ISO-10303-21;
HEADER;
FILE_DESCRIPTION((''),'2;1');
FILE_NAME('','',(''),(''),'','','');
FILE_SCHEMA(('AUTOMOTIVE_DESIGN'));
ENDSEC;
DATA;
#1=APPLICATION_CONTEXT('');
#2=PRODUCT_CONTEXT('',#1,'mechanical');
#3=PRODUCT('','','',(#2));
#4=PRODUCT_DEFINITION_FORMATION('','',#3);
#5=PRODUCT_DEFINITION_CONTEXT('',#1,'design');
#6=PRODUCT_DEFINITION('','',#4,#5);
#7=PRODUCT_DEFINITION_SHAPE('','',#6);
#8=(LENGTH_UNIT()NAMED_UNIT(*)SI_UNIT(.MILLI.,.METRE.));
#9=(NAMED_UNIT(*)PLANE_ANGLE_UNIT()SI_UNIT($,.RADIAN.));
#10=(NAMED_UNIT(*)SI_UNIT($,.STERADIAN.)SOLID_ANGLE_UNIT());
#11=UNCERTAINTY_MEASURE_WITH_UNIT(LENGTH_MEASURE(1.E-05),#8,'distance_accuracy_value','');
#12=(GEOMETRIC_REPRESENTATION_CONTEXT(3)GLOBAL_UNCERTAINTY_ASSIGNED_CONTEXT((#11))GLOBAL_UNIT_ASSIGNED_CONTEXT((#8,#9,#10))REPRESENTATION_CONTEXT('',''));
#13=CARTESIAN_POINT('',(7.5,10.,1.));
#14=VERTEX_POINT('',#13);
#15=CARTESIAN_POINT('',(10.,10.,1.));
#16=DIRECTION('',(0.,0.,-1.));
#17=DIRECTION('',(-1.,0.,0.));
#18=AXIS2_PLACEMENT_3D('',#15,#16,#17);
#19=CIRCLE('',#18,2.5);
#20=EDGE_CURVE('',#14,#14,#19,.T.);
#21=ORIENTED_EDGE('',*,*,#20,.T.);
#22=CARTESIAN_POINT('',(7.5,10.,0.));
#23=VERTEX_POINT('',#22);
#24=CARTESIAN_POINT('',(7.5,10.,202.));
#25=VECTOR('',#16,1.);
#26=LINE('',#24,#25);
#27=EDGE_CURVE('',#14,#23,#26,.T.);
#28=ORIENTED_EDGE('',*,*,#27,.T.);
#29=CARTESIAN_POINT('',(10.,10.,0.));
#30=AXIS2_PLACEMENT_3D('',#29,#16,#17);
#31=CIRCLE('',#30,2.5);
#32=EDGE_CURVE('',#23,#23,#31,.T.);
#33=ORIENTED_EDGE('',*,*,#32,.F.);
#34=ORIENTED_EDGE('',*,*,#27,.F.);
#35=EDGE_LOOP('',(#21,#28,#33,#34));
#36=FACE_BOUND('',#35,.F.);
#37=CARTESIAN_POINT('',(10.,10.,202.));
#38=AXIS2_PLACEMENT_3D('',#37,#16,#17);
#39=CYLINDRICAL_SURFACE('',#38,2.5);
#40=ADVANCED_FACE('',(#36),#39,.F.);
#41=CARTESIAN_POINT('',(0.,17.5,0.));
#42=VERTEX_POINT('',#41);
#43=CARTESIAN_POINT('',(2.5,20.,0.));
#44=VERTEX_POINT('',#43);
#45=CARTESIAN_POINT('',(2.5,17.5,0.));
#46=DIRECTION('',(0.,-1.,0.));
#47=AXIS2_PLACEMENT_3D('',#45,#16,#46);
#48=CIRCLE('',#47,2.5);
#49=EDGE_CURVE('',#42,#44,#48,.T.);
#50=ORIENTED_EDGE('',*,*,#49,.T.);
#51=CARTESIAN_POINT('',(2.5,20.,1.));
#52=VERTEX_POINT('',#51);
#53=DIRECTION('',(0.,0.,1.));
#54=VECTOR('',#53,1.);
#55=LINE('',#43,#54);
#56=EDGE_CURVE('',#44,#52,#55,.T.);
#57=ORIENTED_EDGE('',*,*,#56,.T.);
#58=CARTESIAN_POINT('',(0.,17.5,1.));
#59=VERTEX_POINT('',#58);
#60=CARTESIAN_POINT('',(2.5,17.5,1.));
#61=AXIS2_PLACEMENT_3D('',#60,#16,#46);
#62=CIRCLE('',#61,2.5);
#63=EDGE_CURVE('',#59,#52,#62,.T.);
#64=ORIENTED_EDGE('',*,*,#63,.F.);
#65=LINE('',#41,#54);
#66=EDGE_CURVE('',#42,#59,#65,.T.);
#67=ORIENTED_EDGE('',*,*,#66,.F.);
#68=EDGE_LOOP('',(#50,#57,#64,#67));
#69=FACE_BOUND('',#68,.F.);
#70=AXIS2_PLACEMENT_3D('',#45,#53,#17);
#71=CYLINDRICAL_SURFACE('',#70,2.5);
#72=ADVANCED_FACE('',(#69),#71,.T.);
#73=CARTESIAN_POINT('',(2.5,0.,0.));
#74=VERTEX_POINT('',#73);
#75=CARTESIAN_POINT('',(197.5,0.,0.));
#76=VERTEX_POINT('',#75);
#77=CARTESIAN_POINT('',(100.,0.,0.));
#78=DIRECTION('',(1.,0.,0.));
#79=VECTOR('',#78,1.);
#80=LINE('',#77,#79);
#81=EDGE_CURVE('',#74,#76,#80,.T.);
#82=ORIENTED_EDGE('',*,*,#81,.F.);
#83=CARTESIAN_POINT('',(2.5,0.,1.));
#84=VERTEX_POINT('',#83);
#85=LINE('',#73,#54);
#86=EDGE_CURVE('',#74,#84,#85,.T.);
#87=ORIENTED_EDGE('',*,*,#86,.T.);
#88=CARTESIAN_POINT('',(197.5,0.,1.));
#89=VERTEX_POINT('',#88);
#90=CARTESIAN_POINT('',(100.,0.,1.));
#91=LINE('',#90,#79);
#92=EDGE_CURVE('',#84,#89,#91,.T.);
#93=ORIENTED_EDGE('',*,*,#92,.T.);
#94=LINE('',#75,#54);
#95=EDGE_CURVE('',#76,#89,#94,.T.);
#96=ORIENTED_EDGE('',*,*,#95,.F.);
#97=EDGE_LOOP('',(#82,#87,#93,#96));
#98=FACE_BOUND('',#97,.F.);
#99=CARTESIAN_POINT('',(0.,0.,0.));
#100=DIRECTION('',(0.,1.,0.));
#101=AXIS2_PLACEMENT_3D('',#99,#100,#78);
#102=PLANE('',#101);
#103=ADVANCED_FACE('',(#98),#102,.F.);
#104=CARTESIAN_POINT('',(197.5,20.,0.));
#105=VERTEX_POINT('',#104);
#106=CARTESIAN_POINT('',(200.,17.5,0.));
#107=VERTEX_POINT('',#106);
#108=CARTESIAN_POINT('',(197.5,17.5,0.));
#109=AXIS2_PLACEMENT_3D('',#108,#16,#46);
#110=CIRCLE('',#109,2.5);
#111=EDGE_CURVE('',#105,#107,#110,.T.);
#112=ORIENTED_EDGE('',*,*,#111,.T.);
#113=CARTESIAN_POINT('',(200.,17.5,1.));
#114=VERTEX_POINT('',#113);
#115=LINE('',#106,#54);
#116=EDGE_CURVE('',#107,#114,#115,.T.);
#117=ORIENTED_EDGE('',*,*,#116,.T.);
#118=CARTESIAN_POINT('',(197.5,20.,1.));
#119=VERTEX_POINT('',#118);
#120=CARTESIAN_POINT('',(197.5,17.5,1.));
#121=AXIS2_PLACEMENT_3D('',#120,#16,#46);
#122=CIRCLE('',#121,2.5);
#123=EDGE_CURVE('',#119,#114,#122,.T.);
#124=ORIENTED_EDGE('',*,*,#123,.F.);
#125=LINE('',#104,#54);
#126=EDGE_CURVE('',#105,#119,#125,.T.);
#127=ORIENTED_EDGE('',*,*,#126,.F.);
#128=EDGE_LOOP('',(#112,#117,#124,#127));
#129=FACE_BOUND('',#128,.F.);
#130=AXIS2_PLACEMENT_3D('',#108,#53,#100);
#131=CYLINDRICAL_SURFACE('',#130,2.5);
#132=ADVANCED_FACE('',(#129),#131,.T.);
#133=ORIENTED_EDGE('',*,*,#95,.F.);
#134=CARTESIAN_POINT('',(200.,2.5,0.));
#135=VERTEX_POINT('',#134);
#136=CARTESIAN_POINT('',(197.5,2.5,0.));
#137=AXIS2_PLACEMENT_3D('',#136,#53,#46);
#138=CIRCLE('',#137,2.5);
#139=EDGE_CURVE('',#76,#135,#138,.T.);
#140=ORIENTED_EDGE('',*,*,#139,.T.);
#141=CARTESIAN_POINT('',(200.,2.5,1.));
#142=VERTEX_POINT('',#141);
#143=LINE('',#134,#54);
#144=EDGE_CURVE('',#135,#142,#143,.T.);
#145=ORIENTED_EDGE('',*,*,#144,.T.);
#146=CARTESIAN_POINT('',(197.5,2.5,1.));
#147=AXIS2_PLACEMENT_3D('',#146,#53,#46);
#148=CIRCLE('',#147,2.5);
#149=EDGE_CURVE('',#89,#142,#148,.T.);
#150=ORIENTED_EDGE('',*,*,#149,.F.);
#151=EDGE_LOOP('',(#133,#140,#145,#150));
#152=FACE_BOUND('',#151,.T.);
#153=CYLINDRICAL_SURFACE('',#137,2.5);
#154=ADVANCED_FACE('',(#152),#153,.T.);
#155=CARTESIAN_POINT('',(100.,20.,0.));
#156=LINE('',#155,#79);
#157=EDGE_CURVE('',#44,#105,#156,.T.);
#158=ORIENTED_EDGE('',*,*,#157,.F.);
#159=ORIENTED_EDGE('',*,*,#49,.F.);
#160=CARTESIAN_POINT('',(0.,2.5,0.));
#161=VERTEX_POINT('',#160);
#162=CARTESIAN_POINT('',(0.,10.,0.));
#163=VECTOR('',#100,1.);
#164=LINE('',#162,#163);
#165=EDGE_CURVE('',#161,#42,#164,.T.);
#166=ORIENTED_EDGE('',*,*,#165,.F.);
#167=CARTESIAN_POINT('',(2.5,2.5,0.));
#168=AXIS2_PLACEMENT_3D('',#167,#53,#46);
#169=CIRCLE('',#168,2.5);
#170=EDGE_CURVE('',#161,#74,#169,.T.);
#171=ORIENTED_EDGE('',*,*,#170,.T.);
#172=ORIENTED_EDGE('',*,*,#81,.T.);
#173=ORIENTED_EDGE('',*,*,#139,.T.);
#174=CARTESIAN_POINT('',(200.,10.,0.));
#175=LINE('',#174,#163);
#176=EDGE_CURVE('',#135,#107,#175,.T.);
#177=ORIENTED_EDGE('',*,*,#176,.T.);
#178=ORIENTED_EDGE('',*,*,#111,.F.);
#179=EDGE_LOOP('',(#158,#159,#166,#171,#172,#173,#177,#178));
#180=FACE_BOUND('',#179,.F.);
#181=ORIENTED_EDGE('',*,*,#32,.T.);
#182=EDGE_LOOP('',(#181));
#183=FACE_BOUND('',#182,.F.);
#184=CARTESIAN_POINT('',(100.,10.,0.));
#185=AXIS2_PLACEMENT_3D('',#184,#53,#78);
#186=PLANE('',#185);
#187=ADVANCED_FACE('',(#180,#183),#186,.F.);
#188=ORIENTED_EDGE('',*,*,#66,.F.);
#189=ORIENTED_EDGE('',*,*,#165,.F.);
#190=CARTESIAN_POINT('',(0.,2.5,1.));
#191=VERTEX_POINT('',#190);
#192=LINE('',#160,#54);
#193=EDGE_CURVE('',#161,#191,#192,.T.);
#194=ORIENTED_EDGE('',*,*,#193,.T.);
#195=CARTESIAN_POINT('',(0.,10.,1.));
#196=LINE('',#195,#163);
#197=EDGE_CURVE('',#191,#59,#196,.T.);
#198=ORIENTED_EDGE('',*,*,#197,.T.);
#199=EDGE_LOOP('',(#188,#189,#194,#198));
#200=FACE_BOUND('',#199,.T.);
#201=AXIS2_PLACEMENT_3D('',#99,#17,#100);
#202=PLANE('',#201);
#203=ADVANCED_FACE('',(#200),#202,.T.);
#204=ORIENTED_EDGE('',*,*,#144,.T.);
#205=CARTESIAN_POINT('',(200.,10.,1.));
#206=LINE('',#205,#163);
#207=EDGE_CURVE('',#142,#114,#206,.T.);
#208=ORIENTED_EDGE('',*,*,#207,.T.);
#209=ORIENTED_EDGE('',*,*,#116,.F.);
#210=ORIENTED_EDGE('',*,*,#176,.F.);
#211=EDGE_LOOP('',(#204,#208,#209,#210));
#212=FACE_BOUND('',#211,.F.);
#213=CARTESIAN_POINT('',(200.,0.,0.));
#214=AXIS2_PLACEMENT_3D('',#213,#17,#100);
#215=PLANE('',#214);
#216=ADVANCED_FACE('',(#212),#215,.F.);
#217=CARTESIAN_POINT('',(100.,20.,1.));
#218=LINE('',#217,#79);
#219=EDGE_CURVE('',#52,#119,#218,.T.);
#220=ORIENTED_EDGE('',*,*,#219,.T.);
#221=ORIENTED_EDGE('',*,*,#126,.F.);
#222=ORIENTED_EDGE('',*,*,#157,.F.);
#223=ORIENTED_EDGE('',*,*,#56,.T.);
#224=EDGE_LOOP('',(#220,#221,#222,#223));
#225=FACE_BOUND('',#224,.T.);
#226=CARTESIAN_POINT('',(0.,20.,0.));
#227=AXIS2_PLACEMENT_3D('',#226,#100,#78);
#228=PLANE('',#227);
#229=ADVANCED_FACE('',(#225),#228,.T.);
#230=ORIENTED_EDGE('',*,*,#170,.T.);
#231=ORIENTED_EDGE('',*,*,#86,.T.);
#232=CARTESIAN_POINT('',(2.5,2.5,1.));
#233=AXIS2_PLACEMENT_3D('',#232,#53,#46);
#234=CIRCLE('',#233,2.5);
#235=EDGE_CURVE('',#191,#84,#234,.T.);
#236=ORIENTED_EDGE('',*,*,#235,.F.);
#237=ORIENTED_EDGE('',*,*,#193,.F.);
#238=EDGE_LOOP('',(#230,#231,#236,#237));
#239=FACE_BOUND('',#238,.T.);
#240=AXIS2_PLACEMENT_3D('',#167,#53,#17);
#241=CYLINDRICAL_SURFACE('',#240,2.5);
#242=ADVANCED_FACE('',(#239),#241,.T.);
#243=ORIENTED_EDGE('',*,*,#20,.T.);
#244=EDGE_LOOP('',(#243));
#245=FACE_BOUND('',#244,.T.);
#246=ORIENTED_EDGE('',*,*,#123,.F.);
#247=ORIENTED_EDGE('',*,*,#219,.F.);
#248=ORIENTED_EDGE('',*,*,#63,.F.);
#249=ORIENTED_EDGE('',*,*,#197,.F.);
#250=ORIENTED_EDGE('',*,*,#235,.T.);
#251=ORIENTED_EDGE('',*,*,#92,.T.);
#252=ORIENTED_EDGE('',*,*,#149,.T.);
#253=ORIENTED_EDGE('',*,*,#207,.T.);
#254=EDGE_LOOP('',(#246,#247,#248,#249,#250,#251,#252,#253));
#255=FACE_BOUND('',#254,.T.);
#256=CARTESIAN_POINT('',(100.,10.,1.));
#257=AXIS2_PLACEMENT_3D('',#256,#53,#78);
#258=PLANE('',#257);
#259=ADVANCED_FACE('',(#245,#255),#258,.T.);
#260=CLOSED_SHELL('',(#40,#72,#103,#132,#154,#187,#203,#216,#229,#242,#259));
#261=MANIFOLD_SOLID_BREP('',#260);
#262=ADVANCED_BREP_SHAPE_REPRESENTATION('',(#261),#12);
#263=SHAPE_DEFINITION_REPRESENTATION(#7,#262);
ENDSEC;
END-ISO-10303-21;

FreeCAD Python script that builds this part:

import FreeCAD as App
import Part
import Sketcher
from FreeCAD import Vector
Q = App.Units.Quantity


def edges_at(feature, points):
    """Names of the edges that pass closest to the given points."""
    edges = feature.Shape.Edges
    near = lambda p: min(range(len(edges)), key=lambda i: edges[i].distToShape(Part.Vertex(*p))[0])
    return sorted({f"Edge{near(p) + 1}" for p in points})


def add_polygon(sketch, points):
    """Adds a closed chain of lines whose ends are joined by coincident constraints."""
    first, n = sketch.GeometryCount, len(points)
    for a, b in zip(points, points[1:] + points[:1]):
        sketch.addGeometry(Part.LineSegment(App.Vector(*a, 0), App.Vector(*b, 0)), False)
    for i in range(n):
        sketch.addConstraint(Sketcher.Constraint("Coincident", first + i, 2, first + (i + 1) % n, 1))

doc = App.newDocument("Part")
body = doc.addObject("PartDesign::Body", "Body")

# Sketch on XY plane
sketch1 = doc.addObject("Sketcher::SketchObject", "Sketch")
body.addObject(sketch1)
sketch1.AttachmentSupport = (doc.XY_Plane, [""])
sketch1.MapMode = "FlatFace"
add_polygon(sketch1, [(0, 20), (0, 0), (200, 0), (200, 20)])  # lines 0-3
sketch1.addConstraint([
    Sketcher.Constraint("Vertical", 0),
    Sketcher.Constraint("Horizontal", 1),
    Sketcher.Constraint("Vertical", 2),
    Sketcher.Constraint("Horizontal", 3),
    Sketcher.Constraint("Coincident", 0, 2, -1, 1),
    Sketcher.Constraint("DistanceX", 1, 1, 1, 2, Q("200 mm")),
    Sketcher.Constraint("DistanceY", 0, 2, 0, 1, Q("20 mm")),
])
pad1 = doc.addObject("PartDesign::Pad", "Pad")
body.addObject(pad1)
pad1.Profile = sketch1
pad1.Length = 1

# Sketch on XY plane
sketch2 = doc.addObject("Sketcher::SketchObject", "Sketch001")
body.addObject(sketch2)
sketch2.AttachmentSupport = (doc.XY_Plane, [""])
sketch2.MapMode = "FlatFace"
sketch2.AttachmentOffset = App.Placement(Vector(0, 0, 1), App.Rotation())
sketch2.addGeometry(Part.Circle(Vector(10, 10, 0), Vector(0, 0, 1), 2.5), False)
sketch2.addConstraint([
    Sketcher.Constraint("Diameter", 0, Q("5 mm")),
    Sketcher.Constraint("DistanceX", -1, 1, 0, 3, Q("10 mm")),
    Sketcher.Constraint("DistanceY", -1, 1, 0, 3, Q("10 mm")),
])
doc.recompute()
hole = doc.addObject("PartDesign::Hole", "Hole")
body.addObject(hole)
hole.Profile = sketch2
hole.ThreadType = "None"
hole.Diameter = 5
hole.DepthType = "ThroughAll"
doc.recompute()

fillet = doc.addObject("PartDesign::Fillet", "Fillet")
body.addObject(fillet)
fillet.Base = (hole, edges_at(hole, [
    (0, 20, 0.5),
    (0, 0, 0.5),
    (200, 0, 0.5),
    (200, 20, 0.5),
]))
fillet.Radius = 2.5

doc.recompute()
